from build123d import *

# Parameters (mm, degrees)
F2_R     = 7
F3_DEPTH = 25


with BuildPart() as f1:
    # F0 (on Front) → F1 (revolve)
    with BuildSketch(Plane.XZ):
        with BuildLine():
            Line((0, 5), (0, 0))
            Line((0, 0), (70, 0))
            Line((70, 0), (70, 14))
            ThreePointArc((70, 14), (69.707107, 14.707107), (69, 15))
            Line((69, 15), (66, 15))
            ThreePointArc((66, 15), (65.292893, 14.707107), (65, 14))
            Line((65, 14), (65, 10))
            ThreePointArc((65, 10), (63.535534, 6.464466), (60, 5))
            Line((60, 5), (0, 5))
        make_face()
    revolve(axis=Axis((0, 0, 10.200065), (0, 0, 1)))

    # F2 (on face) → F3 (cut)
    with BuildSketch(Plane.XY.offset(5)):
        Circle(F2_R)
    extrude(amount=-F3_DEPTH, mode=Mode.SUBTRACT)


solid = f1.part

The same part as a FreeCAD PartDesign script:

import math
import FreeCAD as App
import Part
import Sketcher

doc = App.newDocument("Part")
body = doc.addObject("PartDesign::Body", "Body")

sketch1 = body.newObject("Sketcher::SketchObject", "Sketch")
sketch1.AttachmentSupport = (doc.getObject("XZ_Plane"), [""])
sketch1.MapMode = "FlatFace"
sketch1.addGeometry([
    Part.LineSegment(App.Vector(0, 5, 0), App.Vector(0, 0, 0)),
    Part.LineSegment(App.Vector(0, 0, 0), App.Vector(70, 0, 0)),
    Part.LineSegment(App.Vector(70, 0, 0), App.Vector(70, 14, 0)),
    Part.ArcOfCircle(Part.Circle(App.Vector(69, 14, 0), App.Vector(0, 0, 1), 1), math.radians(0), math.radians(90)),
    Part.LineSegment(App.Vector(69, 15, 0), App.Vector(66, 15, 0)),
    Part.ArcOfCircle(Part.Circle(App.Vector(66, 14, 0), App.Vector(0, 0, 1), 1), math.radians(90), math.radians(180)),
    Part.LineSegment(App.Vector(65, 14, 0), App.Vector(65, 10, 0)),
    Part.ArcOfCircle(Part.Circle(App.Vector(60, 10, 0), App.Vector(0, 0, 1), 5), math.radians(-90), math.radians(0)),
    Part.LineSegment(App.Vector(60, 5, 0), App.Vector(0, 5, 0)),
], False)
sketch1.addConstraint([
    Sketcher.Constraint("Coincident", 0, 2, 1, 1),
    Sketcher.Constraint("Coincident", 1, 2, 2, 1),
    Sketcher.Constraint("Tangent", 2, 2, 3, 1),
    Sketcher.Constraint("Tangent", 3, 2, 4, 1),
    Sketcher.Constraint("Tangent", 4, 2, 5, 1),
    Sketcher.Constraint("Tangent", 5, 2, 6, 1),
    Sketcher.Constraint("Tangent", 6, 2, 7, 2),
    Sketcher.Constraint("Tangent", 7, 1, 8, 1),
    Sketcher.Constraint("Coincident", 8, 2, 0, 1),
    Sketcher.Constraint("Vertical", 0),
    Sketcher.Constraint("Horizontal", 1),
    Sketcher.Constraint("Vertical", 2),
    Sketcher.Constraint("Horizontal", 4),
    Sketcher.Constraint("Vertical", 6),
    Sketcher.Constraint("Horizontal", 8),
    Sketcher.Constraint("Coincident", 0, 2, -1, 1),
    Sketcher.Constraint("Equal", 3, 5),
    Sketcher.Constraint("Radius", 3, 0.999999),
    Sketcher.Constraint("Radius", 7, 5.0),
    Sketcher.Constraint("DistanceX", 1, 1, 1, 2, 70.0),
    Sketcher.Constraint("DistanceX", 4, 2, 4, 1, 3.0),
    Sketcher.Constraint("DistanceY", 0, 2, 0, 1, 5.0),
    Sketcher.Constraint("DistanceY", 2, 1, 2, 2, 14.0),
])
revolution = body.newObject("PartDesign::Revolution", "Revolution")
revolution.Profile = sketch1
revolution.ReferenceAxis = (sketch1, ["V_Axis"])
revolution.Angle = 360

sketch2 = body.newObject("Sketcher::SketchObject", "Sketch001")
sketch2.AttachmentSupport = (doc.getObject("XY_Plane"), [""])
sketch2.MapMode = "FlatFace"
sketch2.AttachmentOffset = App.Placement(App.Vector(0, 0, 5), App.Rotation())
sketch2.addGeometry(Part.Circle(App.Vector(0, 0, 0), App.Vector(0, 0, 1), 7), False)
sketch2.addConstraint([
    Sketcher.Constraint("Coincident", 0, 3, -1, 1),
    Sketcher.Constraint("Diameter", 0, 14.0),
])
pocket1 = body.newObject("PartDesign::Pocket", "Pocket")
pocket1.Profile = sketch2
pocket1.Length = 25

doc.recompute()
